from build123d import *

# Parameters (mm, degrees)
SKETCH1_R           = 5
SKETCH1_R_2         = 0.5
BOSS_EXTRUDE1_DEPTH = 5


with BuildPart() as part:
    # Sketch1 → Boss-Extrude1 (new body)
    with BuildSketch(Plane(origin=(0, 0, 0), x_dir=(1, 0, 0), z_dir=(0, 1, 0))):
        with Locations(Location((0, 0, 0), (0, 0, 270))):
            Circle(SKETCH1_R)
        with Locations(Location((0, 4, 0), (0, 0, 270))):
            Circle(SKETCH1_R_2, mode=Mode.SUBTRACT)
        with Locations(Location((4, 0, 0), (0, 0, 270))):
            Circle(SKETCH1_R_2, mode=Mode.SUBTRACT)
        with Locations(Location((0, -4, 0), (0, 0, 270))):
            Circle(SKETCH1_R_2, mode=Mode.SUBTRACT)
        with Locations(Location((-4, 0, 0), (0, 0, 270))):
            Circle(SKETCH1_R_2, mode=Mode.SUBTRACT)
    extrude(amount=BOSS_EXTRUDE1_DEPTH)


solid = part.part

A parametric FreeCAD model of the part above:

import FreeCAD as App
import Part
import Sketcher
from FreeCAD import Vector
Q = App.Units.Quantity

doc = App.newDocument("Part")
body = doc.addObject("PartDesign::Body", "Body")

# Sketch on XZ plane
sketch1 = body.newObject("Sketcher::SketchObject", "Sketch")
sketch1.AttachmentSupport = (doc.getObject("XZ_Plane"), [""])
sketch1.MapMode = "FlatFace"
sketch1.addGeometry([
    Part.Circle(Vector(0, 0, 0), Vector(0, 0, 1), 5),  # 0
    Part.Circle(Vector(0, -4, 0), Vector(0, 0, 1), 0.5),  # 1
    Part.Circle(Vector(-4, 0, 0), Vector(0, 0, 1), 0.5),  # 2
    Part.Circle(Vector(4, 0, 0), Vector(0, 0, 1), 0.5),  # 3
    Part.Circle(Vector(0, 4, 0), Vector(0, 0, 1), 0.5),  # 4
], False)
sketch1.addConstraint([
    Sketcher.Constraint("Coincident", 0, 3, -1, 1),
    Sketcher.Constraint("Equal", 1, 2),
    Sketcher.Constraint("Equal", 2, 3),
    Sketcher.Constraint("Equal", 3, 4),
    Sketcher.Constraint("Symmetric", 2, 3, 3, 3, -1, 1),
    Sketcher.Constraint("Symmetric", 1, 3, 4, 3, -1, 1),
    Sketcher.Constraint("PointOnObject", 1, 3, -2),
    Sketcher.Constraint("PointOnObject", 2, 3, -1),
    Sketcher.Constraint("Diameter", 0, Q("10 mm")),
    Sketcher.Constraint("Diameter", 1, Q("1 mm")),
    Sketcher.Constraint("DistanceY", 1, 3, -1, 1, Q("4 mm")),
    Sketcher.Constraint("DistanceX", 2, 3, -1, 1, Q("4 mm")),
])
pad1 = body.newObject("PartDesign::Pad", "Pad")
pad1.Profile = sketch1
pad1.Length = 5
pad1.Reversed = True

doc.recompute()
